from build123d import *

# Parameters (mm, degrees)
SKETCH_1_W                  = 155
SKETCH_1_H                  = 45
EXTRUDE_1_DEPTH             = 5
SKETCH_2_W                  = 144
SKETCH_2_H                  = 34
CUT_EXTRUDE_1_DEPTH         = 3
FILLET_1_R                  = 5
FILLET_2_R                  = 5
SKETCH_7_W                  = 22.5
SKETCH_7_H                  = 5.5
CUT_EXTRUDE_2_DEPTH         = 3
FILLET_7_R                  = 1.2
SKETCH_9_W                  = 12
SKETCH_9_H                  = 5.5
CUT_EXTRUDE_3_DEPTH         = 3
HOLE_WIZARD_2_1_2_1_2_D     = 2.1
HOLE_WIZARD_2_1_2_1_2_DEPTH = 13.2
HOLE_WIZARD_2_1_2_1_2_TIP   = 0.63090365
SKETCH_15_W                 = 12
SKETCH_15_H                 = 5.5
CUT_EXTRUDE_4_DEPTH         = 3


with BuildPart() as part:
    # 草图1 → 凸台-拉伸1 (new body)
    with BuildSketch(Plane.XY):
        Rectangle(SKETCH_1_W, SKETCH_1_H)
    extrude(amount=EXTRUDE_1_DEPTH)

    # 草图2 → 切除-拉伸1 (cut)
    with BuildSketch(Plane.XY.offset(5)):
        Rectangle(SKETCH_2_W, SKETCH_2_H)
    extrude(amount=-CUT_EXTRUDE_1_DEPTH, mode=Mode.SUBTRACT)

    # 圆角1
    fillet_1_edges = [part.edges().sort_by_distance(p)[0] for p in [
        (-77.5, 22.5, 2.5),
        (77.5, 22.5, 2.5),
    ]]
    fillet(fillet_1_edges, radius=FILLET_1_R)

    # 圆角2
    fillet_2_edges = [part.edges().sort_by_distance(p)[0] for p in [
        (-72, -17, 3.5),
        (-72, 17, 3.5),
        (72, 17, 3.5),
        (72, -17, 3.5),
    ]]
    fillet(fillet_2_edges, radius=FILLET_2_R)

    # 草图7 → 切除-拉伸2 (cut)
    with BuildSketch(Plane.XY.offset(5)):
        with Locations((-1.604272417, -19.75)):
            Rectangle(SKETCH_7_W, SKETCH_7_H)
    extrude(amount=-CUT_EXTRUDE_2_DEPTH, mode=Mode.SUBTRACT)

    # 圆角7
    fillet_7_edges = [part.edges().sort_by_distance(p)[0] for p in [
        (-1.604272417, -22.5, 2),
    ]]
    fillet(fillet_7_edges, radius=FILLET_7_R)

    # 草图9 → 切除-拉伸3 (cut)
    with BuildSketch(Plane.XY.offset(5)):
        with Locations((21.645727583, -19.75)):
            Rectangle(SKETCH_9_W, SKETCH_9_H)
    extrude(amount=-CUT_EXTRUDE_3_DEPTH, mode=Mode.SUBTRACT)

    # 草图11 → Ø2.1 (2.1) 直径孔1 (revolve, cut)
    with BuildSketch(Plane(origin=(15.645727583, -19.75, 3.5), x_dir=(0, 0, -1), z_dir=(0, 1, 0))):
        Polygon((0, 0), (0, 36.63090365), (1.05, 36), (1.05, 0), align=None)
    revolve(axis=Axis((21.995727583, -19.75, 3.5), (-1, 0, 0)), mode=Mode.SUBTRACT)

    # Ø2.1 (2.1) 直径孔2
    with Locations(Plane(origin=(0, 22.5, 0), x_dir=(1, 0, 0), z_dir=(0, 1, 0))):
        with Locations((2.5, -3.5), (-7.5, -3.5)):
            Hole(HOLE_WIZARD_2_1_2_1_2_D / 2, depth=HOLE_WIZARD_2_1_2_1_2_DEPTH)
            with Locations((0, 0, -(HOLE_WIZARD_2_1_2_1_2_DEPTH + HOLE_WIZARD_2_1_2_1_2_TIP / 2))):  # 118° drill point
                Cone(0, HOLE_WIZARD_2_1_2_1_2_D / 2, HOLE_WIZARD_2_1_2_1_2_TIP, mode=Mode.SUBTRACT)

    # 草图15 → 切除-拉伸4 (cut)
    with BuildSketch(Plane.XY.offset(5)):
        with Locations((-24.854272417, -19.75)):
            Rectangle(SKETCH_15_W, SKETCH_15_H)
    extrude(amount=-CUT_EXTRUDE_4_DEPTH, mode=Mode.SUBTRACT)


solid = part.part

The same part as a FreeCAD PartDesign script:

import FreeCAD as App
import Part
import Sketcher

V = App.Vector
Q = App.Units.Quantity


def edges_at(feature, points):
    """Names of the edges that pass closest to the given points."""
    edges = feature.Shape.Edges
    near = lambda p: min(range(len(edges)), key=lambda i: edges[i].distToShape(Part.Vertex(*p))[0])
    return sorted({f"Edge{near(p) + 1}" for p in points})


def add_polygon(sketch, points):
    """Adds a closed chain of lines whose ends are joined by coincident constraints."""
    first, n = sketch.GeometryCount, len(points)
    for a, b in zip(points, points[1:] + points[:1]):
        sketch.addGeometry(Part.LineSegment(App.Vector(*a, 0), App.Vector(*b, 0)), False)
    for i in range(n):
        sketch.addConstraint(Sketcher.Constraint("Coincident", first + i, 2, first + (i + 1) % n, 1))

doc = App.newDocument("Part")
body = doc.addObject("PartDesign::Body", "Body")

# Sketch on XY plane
sketch1 = doc.addObject("Sketcher::SketchObject", "Sketch")
body.addObject(sketch1)
sketch1.AttachmentSupport = (doc.XY_Plane, [""])
sketch1.MapMode = "FlatFace"
add_polygon(sketch1, [(-78, 22), (-78, -22), (78, -22), (78, 22)])  # lines 0-3
sketch1.addConstraint([
    Sketcher.Constraint("Vertical", 0),
    Sketcher.Constraint("Horizontal", 1),
    Sketcher.Constraint("Vertical", 2),
    Sketcher.Constraint("Horizontal", 3),
    Sketcher.Constraint("Symmetric", 0, 2, 2, 2, -1, 1),
    Sketcher.Constraint("DistanceX", 1, 1, 1, 2, Q("155 mm")),
    Sketcher.Constraint("DistanceY", 0, 2, 0, 1, Q("45 mm")),
])
pad1 = doc.addObject("PartDesign::Pad", "Pad")
body.addObject(pad1)
pad1.Profile = sketch1
pad1.Length = 5

# Sketch on XY plane
sketch2 = doc.addObject("Sketcher::SketchObject", "Sketch001")
body.addObject(sketch2)
sketch2.AttachmentSupport = (doc.XY_Plane, [""])
sketch2.MapMode = "FlatFace"
sketch2.AttachmentOffset = App.Placement(V(0, 0, 5), App.Rotation())
add_polygon(sketch2, [(-72, 17), (-72, -17), (72, -17), (72, 17)])  # lines 0-3
sketch2.addConstraint([
    Sketcher.Constraint("Vertical", 0),
    Sketcher.Constraint("Horizontal", 1),
    Sketcher.Constraint("Vertical", 2),
    Sketcher.Constraint("Horizontal", 3),
    Sketcher.Constraint("Symmetric", 0, 2, 2, 2, -1, 1),
    Sketcher.Constraint("DistanceX", 1, 1, 1, 2, Q("144 mm")),
    Sketcher.Constraint("DistanceY", 0, 2, 0, 1, Q("34 mm")),
])
pocket1 = doc.addObject("PartDesign::Pocket", "Pocket")
body.addObject(pocket1)
pocket1.Profile = sketch2
pocket1.Length = 3
doc.recompute()

fillet = doc.addObject("PartDesign::Fillet", "Fillet")
body.addObject(fillet)
fillet.Base = (pocket1, edges_at(pocket1, [(-77.5, 22.5, 2.5), (77.5, 22.5, 2.5)]))
fillet.Radius = 5
doc.recompute()

fillet2 = doc.addObject("PartDesign::Fillet", "Fillet001")
body.addObject(fillet2)
fillet2.Base = (fillet, edges_at(fillet, [
    (-72, -17, 3.5),
    (-72, 17, 3.5),
    (72, 17, 3.5),
    (72, -17, 3.5),
]))
fillet2.Radius = 5

# Sketch on XY plane
sketch3 = doc.addObject("Sketcher::SketchObject", "Sketch002")
body.addObject(sketch3)
sketch3.AttachmentSupport = (doc.XY_Plane, [""])
sketch3.MapMode = "FlatFace"
sketch3.AttachmentOffset = App.Placement(V(0, 0, 5), App.Rotation())
add_polygon(sketch3, [(-13, -17), (-13, -22), (10, -22), (10, -17)])  # lines 0-3
sketch3.addConstraint([
    Sketcher.Constraint("Vertical", 0),
    Sketcher.Constraint("Horizontal", 1),
    Sketcher.Constraint("Vertical", 2),
    Sketcher.Constraint("Horizontal", 3),
    Sketcher.Constraint("DistanceX", 1, 1, 1, 2, Q("22.5 mm")),
    Sketcher.Constraint("DistanceY", 0, 2, 0, 1, Q("5.5 mm")),
    Sketcher.Constraint("DistanceY", 2, 2, -1, 1, Q("17 mm")),
    Sketcher.Constraint("DistanceX", 0, 2, -1, 1, Q("12.854272 mm")),
])
pocket2 = doc.addObject("PartDesign::Pocket", "Pocket001")
body.addObject(pocket2)
pocket2.Profile = sketch3
pocket2.Length = 3
doc.recompute()

fillet3 = doc.addObject("PartDesign::Fillet", "Fillet002")
body.addObject(fillet3)
fillet3.Base = (pocket2, edges_at(pocket2, [(-1.604, -22.5, 2)]))
fillet3.Radius = 1.2

# Sketch on XY plane
sketch4 = doc.addObject("Sketcher::SketchObject", "Sketch003")
body.addObject(sketch4)
sketch4.AttachmentSupport = (doc.XY_Plane, [""])
sketch4.MapMode = "FlatFace"
sketch4.AttachmentOffset = App.Placement(V(0, 0, 5), App.Rotation())
add_polygon(sketch4, [(16, -17), (16, -22), (28, -22), (28, -17)])  # lines 0-3
sketch4.addConstraint([
    Sketcher.Constraint("Vertical", 0),
    Sketcher.Constraint("Horizontal", 1),
    Sketcher.Constraint("Vertical", 2),
    Sketcher.Constraint("Horizontal", 3),
    Sketcher.Constraint("DistanceX", 1, 1, 1, 2, Q("12 mm")),
    Sketcher.Constraint("DistanceY", 0, 2, 0, 1, Q("5.5 mm")),
    Sketcher.Constraint("DistanceY", 2, 2, -1, 1, Q("17 mm")),
    Sketcher.Constraint("DistanceX", -1, 1, 0, 2, Q("15.645728 mm")),
])
pocket3 = doc.addObject("PartDesign::Pocket", "Pocket002")
body.addObject(pocket3)
pocket3.Profile = sketch4
pocket3.Length = 3

# Sketch on XZ plane
sketch5 = doc.addObject("Sketcher::SketchObject", "Sketch004")
body.addObject(sketch5)
sketch5.AttachmentSupport = (doc.XZ_Plane, [""])
sketch5.MapMode = "FlatFace"
sketch5.AttachmentOffset = App.Placement(V(0, 0, 19.75), App.Rotation())
add_polygon(sketch5, [(-21, 3.5), (15.6, 3.5), (15.6, 2.5), (-20.4, 2.5)])  # lines 0-3
sketch5.addGeometry(Part.LineSegment(V(15.6, 3.5, 0), V(-21, 3.5, 0)), True)  # axis
sketch5.addConstraint([
    Sketcher.Constraint("Horizontal", 0),
    Sketcher.Constraint("Vertical", 1),
    Sketcher.Constraint("Horizontal", 2),
    Sketcher.Constraint("Horizontal", 4),
    Sketcher.Constraint("Coincident", 4, 1, 0, 2),
    Sketcher.Constraint("Equal", 0, 4),
    Sketcher.Constraint("DistanceX", 2, 2, 2, 1, Q("36 mm")),
    Sketcher.Constraint("Angle", 3, Q("121 deg")),
    Sketcher.Constraint("DistanceY", 1, 2, 1, 1, Q("1.05 mm")),
    Sketcher.Constraint("DistanceY", -1, 1, 0, 2, Q("3.5 mm")),
    Sketcher.Constraint("DistanceX", -1, 1, 0, 2, Q("15.645728 mm")),
])
groove = doc.addObject("PartDesign::Groove", "Groove")
body.addObject(groove)
groove.Profile = sketch5
groove.ReferenceAxis = (sketch5, ["Axis0"])
groove.Angle = 360

# Sketch on XZ plane
sketch6 = doc.addObject("Sketcher::SketchObject", "Sketch005")
body.addObject(sketch6)
sketch6.AttachmentSupport = (doc.XZ_Plane, [""])
sketch6.MapMode = "FlatFace"
sketch6.AttachmentOffset = App.Placement(V(0, 0, -22.5), App.Rotation())
sketch6.addGeometry([
    Part.Circle(V(2.5, 3.5, 0), V(0, 0, 1), 1.1),
    Part.Circle(V(-7.5, 3.5, 0), V(0, 0, 1), 1.1),
], False)
sketch6.addConstraint([
    Sketcher.Constraint("Equal", 0, 1),
    Sketcher.Constraint("Horizontal", 0, 3, 1, 3),
    Sketcher.Constraint("Diameter", 0, Q("2.1 mm")),
    Sketcher.Constraint("DistanceX", 1, 3, 0, 3, Q("10 mm")),
    Sketcher.Constraint("DistanceX", -1, 1, 0, 3, Q("2.5 mm")),
    Sketcher.Constraint("DistanceY", -1, 1, 0, 3, Q("3.5 mm")),
])
doc.recompute()
hole = doc.addObject("PartDesign::Hole", "Hole")
body.addObject(hole)
hole.Profile = sketch6
hole.ThreadType = "None"
hole.Diameter = 2.1
hole.DepthType = "Dimension"
hole.Depth = 13.2
hole.DrillPoint = "Angled"
hole.DrillPointAngle = 118
hole.Reversed = True

# Sketch on XY plane
sketch7 = doc.addObject("Sketcher::SketchObject", "Sketch006")
body.addObject(sketch7)
sketch7.AttachmentSupport = (doc.XY_Plane, [""])
sketch7.MapMode = "FlatFace"
sketch7.AttachmentOffset = App.Placement(V(0, 0, 5), App.Rotation())
add_polygon(sketch7, [(-31, -17), (-31, -22), (-19, -22), (-19, -17)])  # lines 0-3
sketch7.addConstraint([
    Sketcher.Constraint("Vertical", 0),
    Sketcher.Constraint("Horizontal", 1),
    Sketcher.Constraint("Vertical", 2),
    Sketcher.Constraint("Horizontal", 3),
    Sketcher.Constraint("DistanceX", 1, 1, 1, 2, Q("12 mm")),
    Sketcher.Constraint("DistanceY", 0, 2, 0, 1, Q("5.5 mm")),
    Sketcher.Constraint("DistanceY", 2, 2, -1, 1, Q("17 mm")),
    Sketcher.Constraint("DistanceX", 0, 2, -1, 1, Q("30.854272 mm")),
])
pocket4 = doc.addObject("PartDesign::Pocket", "Pocket003")
body.addObject(pocket4)
pocket4.Profile = sketch7
pocket4.Length = 3

doc.recompute()
